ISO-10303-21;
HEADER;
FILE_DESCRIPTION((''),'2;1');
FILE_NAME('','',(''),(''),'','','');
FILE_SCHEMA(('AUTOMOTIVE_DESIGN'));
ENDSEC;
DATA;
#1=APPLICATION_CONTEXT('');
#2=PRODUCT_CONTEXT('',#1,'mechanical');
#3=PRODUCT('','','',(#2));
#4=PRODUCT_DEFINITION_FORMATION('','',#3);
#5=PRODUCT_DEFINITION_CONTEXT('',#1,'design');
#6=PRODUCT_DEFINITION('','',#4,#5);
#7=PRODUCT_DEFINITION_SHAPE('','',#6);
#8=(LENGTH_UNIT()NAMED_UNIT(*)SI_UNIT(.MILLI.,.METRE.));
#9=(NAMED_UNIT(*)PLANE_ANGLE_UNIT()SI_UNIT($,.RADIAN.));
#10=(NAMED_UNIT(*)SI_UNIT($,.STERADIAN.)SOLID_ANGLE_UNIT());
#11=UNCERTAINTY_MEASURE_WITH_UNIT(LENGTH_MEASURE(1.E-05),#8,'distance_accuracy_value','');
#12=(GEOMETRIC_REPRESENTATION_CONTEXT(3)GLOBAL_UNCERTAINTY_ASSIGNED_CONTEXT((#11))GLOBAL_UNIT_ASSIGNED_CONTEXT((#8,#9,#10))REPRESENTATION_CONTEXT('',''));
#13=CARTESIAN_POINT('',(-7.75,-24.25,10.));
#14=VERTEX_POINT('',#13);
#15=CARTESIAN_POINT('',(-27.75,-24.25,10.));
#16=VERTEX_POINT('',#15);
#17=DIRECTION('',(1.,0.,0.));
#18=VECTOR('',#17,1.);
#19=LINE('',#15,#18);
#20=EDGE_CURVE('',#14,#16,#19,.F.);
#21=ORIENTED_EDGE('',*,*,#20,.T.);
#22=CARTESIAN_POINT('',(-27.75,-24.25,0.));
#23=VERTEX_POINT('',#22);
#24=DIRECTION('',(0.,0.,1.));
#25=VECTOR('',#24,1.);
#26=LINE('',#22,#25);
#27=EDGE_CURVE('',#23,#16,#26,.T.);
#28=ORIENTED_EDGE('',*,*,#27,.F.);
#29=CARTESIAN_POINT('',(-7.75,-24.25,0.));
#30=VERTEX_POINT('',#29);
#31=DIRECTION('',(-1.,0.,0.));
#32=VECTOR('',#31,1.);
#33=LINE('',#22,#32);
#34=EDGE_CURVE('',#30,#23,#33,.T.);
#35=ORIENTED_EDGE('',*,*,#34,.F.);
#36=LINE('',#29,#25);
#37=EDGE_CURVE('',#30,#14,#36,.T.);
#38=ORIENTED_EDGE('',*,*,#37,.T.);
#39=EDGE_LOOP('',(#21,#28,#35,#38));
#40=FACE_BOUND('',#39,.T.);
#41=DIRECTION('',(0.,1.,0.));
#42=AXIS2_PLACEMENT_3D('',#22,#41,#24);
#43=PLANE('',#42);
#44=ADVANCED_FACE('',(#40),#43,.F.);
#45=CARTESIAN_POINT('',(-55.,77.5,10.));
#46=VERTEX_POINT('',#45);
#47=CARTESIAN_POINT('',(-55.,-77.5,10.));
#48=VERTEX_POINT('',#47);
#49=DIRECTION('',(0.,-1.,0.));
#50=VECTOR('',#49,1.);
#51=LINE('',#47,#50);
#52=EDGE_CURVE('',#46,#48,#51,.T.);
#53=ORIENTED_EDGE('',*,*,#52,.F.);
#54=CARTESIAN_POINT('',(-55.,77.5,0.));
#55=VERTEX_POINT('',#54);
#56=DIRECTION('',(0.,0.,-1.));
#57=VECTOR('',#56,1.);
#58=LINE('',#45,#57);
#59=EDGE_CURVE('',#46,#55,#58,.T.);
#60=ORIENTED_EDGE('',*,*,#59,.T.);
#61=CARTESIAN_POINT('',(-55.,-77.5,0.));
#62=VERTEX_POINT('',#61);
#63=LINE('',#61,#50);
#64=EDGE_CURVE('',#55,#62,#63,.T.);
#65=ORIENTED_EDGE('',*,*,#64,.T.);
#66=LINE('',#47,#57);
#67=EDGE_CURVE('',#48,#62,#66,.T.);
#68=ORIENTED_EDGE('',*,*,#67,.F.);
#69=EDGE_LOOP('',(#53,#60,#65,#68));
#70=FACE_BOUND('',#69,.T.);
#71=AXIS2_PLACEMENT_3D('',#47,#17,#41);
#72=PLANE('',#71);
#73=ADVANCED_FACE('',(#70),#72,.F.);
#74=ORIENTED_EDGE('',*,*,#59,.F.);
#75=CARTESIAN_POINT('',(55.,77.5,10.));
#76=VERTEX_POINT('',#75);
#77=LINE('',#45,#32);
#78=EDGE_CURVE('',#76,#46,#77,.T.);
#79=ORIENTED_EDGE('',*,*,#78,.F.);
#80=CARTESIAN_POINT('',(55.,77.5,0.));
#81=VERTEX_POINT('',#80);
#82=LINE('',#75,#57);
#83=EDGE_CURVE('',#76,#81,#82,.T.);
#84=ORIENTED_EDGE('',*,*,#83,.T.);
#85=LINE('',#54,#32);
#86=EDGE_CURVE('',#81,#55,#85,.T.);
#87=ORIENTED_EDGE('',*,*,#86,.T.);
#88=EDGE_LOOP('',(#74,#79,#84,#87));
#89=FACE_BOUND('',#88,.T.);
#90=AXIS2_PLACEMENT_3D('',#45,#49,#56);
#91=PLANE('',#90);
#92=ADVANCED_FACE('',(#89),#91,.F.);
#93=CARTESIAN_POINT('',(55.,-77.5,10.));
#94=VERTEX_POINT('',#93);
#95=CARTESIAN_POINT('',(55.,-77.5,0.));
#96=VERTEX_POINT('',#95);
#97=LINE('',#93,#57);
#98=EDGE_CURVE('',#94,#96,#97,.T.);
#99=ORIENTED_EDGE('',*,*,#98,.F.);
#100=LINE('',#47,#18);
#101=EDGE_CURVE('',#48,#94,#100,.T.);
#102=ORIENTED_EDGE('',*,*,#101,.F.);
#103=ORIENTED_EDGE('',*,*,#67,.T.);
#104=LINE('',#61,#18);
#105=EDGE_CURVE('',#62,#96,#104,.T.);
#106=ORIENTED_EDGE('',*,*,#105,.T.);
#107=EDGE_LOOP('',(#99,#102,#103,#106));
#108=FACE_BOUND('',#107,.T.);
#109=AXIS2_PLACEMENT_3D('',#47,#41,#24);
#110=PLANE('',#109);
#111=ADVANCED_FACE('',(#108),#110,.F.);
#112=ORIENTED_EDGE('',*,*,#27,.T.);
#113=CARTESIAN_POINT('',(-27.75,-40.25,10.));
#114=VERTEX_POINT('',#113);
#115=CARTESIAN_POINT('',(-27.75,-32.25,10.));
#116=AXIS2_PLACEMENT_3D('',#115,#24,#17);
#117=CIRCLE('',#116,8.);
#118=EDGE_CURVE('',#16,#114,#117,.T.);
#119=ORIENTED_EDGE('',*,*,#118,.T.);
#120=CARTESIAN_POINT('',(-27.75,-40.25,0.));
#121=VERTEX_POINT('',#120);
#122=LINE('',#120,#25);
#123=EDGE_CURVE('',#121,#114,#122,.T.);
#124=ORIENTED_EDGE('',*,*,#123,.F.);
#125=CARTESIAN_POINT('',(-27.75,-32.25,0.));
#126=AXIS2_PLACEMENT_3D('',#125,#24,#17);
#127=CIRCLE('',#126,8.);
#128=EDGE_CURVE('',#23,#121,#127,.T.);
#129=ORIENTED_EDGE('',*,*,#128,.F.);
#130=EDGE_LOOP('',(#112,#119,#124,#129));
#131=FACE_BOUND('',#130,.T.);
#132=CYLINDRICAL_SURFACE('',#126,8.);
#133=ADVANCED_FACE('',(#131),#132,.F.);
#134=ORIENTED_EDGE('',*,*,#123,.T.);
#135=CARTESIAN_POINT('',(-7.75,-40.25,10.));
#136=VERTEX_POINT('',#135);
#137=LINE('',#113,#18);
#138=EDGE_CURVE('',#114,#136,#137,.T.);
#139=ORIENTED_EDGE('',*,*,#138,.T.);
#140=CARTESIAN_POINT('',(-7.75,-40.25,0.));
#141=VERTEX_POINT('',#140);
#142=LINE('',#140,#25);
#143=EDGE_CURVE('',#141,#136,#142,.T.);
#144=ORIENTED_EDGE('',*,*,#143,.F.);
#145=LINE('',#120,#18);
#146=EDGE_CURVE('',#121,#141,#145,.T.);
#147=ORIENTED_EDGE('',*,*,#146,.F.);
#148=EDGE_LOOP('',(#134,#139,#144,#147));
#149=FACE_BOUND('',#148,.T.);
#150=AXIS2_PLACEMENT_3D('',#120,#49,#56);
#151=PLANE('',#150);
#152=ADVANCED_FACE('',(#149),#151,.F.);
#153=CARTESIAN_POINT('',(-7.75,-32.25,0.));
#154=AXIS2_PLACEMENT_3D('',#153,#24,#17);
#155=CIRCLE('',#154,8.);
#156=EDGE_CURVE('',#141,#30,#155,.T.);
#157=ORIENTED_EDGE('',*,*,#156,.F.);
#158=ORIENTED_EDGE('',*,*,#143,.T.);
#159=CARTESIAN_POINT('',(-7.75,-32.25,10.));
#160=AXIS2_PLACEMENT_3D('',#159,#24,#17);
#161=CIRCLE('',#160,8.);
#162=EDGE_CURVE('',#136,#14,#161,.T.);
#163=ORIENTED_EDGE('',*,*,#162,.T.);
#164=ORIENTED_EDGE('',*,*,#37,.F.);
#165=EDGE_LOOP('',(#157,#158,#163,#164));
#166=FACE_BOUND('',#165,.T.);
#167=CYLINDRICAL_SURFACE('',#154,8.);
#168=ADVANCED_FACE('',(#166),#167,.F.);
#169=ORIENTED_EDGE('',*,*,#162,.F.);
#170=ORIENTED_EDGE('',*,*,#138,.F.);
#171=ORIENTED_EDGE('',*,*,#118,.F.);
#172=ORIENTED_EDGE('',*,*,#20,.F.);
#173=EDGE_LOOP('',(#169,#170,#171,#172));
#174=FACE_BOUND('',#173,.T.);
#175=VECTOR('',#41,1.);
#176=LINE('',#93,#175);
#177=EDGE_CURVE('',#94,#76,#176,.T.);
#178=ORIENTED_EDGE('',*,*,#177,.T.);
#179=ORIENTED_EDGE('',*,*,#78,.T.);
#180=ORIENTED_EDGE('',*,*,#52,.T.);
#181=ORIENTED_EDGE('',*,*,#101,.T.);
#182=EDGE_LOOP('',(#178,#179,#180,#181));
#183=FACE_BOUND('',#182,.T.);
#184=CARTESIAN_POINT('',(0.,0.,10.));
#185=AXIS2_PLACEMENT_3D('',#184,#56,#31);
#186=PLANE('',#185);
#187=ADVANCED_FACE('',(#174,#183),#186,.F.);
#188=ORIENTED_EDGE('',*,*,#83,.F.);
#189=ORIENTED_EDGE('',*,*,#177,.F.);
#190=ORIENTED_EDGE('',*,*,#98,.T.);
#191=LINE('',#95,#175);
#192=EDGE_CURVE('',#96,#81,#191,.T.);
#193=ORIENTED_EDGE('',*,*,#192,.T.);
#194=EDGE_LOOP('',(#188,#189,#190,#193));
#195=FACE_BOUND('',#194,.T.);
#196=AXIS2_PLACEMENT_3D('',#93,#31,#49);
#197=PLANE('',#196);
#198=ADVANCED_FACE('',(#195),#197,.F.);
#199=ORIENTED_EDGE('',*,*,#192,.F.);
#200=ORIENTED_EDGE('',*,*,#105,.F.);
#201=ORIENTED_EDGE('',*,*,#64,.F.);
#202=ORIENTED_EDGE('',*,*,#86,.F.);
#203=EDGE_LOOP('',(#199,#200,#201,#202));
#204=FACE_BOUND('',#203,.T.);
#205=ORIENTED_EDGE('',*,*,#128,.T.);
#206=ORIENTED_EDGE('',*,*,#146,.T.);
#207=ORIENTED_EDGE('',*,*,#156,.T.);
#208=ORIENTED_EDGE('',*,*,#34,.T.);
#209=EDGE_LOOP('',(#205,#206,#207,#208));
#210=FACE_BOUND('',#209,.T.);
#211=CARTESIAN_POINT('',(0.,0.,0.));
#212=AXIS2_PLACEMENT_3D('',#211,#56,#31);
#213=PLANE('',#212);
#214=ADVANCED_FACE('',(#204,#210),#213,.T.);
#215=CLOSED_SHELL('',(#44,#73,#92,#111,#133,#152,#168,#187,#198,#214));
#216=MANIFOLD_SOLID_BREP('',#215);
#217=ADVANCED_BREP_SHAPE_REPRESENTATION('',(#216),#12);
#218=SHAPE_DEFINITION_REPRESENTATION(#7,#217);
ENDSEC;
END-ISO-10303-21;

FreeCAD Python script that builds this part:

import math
import FreeCAD as App
import Part
import Sketcher

V = App.Vector
Q = App.Units.Quantity

doc = App.newDocument("Part")
body = doc.addObject("PartDesign::Body", "Body")

sketch1 = body.newObject("Sketcher::SketchObject", "Sketch")
sketch1.AttachmentSupport = (doc.getObject("XY_Plane"), [""])
sketch1.MapMode = "FlatFace"
sketch1.addGeometry([
    Part.LineSegment(V(-55, 78, 0), V(-55, -78, 0)),
    Part.LineSegment(V(-55, -78, 0), V(55, -78, 0)),
    Part.LineSegment(V(55, -78, 0), V(55, 78, 0)),
    Part.LineSegment(V(55, 78, 0), V(-55, 78, 0)),
], False)
sketch1.addConstraint([
    Sketcher.Constraint("Coincident", 0, 2, 1, 1),
    Sketcher.Constraint("Coincident", 1, 2, 2, 1),
    Sketcher.Constraint("Coincident", 2, 2, 3, 1),
    Sketcher.Constraint("Coincident", 3, 2, 0, 1),
    Sketcher.Constraint("Vertical", 0),
    Sketcher.Constraint("Horizontal", 1),
    Sketcher.Constraint("Vertical", 2),
    Sketcher.Constraint("Horizontal", 3),
    Sketcher.Constraint("Symmetric", 0, 2, 2, 2, -1, 1),
    Sketcher.Constraint("DistanceX", 1, 1, 1, 2, Q("110 mm")),
    Sketcher.Constraint("DistanceY", 0, 2, 0, 1, Q("155 mm")),
])
pad1 = body.newObject("PartDesign::Pad", "Pad")
pad1.Profile = sketch1
pad1.Length = 10

sketch2 = body.newObject("Sketcher::SketchObject", "Sketch001")
sketch2.AttachmentSupport = (doc.getObject("XY_Plane"), [""])
sketch2.MapMode = "FlatFace"
sketch2.AttachmentOffset = App.Placement(V(0, 0, 10), App.Rotation())
sketch2.addGeometry([
    Part.LineSegment(V(-8, -24, 0), V(-28, -24, 0)),
    Part.ArcOfCircle(Part.Circle(V(-28, -32, 0), V(0, 0, 1), 8), math.radians(90), math.radians(270)),
    Part.LineSegment(V(-28, -40, 0), V(-8, -40, 0)),
    Part.ArcOfCircle(Part.Circle(V(-8, -32, 0), V(0, 0, 1), 8), math.radians(-90), math.radians(90)),
], False)
sketch2.addConstraint([
    Sketcher.Constraint("Tangent", 0, 2, 1, 1),
    Sketcher.Constraint("Tangent", 1, 2, 2, 1),
    Sketcher.Constraint("Tangent", 2, 2, 3, 1),
    Sketcher.Constraint("Tangent", 3, 2, 0, 1),
    Sketcher.Constraint("Horizontal", 0),
    Sketcher.Constraint("Horizontal", 2),
    Sketcher.Constraint("Radius", 1, Q("8 mm")),
    Sketcher.Constraint("DistanceX", 0, 2, 0, 1, Q("20 mm")),
    Sketcher.Constraint("DistanceX", 1, 3, -1, 1, Q("27.75 mm")),
    Sketcher.Constraint("DistanceY", 1, 3, -1, 1, Q("32.25 mm")),
])
pocket1 = body.newObject("PartDesign::Pocket", "Pocket")
pocket1.Profile = sketch2
pocket1.Type = "ThroughAll"
pocket1.Midplane = True

doc.recompute()
